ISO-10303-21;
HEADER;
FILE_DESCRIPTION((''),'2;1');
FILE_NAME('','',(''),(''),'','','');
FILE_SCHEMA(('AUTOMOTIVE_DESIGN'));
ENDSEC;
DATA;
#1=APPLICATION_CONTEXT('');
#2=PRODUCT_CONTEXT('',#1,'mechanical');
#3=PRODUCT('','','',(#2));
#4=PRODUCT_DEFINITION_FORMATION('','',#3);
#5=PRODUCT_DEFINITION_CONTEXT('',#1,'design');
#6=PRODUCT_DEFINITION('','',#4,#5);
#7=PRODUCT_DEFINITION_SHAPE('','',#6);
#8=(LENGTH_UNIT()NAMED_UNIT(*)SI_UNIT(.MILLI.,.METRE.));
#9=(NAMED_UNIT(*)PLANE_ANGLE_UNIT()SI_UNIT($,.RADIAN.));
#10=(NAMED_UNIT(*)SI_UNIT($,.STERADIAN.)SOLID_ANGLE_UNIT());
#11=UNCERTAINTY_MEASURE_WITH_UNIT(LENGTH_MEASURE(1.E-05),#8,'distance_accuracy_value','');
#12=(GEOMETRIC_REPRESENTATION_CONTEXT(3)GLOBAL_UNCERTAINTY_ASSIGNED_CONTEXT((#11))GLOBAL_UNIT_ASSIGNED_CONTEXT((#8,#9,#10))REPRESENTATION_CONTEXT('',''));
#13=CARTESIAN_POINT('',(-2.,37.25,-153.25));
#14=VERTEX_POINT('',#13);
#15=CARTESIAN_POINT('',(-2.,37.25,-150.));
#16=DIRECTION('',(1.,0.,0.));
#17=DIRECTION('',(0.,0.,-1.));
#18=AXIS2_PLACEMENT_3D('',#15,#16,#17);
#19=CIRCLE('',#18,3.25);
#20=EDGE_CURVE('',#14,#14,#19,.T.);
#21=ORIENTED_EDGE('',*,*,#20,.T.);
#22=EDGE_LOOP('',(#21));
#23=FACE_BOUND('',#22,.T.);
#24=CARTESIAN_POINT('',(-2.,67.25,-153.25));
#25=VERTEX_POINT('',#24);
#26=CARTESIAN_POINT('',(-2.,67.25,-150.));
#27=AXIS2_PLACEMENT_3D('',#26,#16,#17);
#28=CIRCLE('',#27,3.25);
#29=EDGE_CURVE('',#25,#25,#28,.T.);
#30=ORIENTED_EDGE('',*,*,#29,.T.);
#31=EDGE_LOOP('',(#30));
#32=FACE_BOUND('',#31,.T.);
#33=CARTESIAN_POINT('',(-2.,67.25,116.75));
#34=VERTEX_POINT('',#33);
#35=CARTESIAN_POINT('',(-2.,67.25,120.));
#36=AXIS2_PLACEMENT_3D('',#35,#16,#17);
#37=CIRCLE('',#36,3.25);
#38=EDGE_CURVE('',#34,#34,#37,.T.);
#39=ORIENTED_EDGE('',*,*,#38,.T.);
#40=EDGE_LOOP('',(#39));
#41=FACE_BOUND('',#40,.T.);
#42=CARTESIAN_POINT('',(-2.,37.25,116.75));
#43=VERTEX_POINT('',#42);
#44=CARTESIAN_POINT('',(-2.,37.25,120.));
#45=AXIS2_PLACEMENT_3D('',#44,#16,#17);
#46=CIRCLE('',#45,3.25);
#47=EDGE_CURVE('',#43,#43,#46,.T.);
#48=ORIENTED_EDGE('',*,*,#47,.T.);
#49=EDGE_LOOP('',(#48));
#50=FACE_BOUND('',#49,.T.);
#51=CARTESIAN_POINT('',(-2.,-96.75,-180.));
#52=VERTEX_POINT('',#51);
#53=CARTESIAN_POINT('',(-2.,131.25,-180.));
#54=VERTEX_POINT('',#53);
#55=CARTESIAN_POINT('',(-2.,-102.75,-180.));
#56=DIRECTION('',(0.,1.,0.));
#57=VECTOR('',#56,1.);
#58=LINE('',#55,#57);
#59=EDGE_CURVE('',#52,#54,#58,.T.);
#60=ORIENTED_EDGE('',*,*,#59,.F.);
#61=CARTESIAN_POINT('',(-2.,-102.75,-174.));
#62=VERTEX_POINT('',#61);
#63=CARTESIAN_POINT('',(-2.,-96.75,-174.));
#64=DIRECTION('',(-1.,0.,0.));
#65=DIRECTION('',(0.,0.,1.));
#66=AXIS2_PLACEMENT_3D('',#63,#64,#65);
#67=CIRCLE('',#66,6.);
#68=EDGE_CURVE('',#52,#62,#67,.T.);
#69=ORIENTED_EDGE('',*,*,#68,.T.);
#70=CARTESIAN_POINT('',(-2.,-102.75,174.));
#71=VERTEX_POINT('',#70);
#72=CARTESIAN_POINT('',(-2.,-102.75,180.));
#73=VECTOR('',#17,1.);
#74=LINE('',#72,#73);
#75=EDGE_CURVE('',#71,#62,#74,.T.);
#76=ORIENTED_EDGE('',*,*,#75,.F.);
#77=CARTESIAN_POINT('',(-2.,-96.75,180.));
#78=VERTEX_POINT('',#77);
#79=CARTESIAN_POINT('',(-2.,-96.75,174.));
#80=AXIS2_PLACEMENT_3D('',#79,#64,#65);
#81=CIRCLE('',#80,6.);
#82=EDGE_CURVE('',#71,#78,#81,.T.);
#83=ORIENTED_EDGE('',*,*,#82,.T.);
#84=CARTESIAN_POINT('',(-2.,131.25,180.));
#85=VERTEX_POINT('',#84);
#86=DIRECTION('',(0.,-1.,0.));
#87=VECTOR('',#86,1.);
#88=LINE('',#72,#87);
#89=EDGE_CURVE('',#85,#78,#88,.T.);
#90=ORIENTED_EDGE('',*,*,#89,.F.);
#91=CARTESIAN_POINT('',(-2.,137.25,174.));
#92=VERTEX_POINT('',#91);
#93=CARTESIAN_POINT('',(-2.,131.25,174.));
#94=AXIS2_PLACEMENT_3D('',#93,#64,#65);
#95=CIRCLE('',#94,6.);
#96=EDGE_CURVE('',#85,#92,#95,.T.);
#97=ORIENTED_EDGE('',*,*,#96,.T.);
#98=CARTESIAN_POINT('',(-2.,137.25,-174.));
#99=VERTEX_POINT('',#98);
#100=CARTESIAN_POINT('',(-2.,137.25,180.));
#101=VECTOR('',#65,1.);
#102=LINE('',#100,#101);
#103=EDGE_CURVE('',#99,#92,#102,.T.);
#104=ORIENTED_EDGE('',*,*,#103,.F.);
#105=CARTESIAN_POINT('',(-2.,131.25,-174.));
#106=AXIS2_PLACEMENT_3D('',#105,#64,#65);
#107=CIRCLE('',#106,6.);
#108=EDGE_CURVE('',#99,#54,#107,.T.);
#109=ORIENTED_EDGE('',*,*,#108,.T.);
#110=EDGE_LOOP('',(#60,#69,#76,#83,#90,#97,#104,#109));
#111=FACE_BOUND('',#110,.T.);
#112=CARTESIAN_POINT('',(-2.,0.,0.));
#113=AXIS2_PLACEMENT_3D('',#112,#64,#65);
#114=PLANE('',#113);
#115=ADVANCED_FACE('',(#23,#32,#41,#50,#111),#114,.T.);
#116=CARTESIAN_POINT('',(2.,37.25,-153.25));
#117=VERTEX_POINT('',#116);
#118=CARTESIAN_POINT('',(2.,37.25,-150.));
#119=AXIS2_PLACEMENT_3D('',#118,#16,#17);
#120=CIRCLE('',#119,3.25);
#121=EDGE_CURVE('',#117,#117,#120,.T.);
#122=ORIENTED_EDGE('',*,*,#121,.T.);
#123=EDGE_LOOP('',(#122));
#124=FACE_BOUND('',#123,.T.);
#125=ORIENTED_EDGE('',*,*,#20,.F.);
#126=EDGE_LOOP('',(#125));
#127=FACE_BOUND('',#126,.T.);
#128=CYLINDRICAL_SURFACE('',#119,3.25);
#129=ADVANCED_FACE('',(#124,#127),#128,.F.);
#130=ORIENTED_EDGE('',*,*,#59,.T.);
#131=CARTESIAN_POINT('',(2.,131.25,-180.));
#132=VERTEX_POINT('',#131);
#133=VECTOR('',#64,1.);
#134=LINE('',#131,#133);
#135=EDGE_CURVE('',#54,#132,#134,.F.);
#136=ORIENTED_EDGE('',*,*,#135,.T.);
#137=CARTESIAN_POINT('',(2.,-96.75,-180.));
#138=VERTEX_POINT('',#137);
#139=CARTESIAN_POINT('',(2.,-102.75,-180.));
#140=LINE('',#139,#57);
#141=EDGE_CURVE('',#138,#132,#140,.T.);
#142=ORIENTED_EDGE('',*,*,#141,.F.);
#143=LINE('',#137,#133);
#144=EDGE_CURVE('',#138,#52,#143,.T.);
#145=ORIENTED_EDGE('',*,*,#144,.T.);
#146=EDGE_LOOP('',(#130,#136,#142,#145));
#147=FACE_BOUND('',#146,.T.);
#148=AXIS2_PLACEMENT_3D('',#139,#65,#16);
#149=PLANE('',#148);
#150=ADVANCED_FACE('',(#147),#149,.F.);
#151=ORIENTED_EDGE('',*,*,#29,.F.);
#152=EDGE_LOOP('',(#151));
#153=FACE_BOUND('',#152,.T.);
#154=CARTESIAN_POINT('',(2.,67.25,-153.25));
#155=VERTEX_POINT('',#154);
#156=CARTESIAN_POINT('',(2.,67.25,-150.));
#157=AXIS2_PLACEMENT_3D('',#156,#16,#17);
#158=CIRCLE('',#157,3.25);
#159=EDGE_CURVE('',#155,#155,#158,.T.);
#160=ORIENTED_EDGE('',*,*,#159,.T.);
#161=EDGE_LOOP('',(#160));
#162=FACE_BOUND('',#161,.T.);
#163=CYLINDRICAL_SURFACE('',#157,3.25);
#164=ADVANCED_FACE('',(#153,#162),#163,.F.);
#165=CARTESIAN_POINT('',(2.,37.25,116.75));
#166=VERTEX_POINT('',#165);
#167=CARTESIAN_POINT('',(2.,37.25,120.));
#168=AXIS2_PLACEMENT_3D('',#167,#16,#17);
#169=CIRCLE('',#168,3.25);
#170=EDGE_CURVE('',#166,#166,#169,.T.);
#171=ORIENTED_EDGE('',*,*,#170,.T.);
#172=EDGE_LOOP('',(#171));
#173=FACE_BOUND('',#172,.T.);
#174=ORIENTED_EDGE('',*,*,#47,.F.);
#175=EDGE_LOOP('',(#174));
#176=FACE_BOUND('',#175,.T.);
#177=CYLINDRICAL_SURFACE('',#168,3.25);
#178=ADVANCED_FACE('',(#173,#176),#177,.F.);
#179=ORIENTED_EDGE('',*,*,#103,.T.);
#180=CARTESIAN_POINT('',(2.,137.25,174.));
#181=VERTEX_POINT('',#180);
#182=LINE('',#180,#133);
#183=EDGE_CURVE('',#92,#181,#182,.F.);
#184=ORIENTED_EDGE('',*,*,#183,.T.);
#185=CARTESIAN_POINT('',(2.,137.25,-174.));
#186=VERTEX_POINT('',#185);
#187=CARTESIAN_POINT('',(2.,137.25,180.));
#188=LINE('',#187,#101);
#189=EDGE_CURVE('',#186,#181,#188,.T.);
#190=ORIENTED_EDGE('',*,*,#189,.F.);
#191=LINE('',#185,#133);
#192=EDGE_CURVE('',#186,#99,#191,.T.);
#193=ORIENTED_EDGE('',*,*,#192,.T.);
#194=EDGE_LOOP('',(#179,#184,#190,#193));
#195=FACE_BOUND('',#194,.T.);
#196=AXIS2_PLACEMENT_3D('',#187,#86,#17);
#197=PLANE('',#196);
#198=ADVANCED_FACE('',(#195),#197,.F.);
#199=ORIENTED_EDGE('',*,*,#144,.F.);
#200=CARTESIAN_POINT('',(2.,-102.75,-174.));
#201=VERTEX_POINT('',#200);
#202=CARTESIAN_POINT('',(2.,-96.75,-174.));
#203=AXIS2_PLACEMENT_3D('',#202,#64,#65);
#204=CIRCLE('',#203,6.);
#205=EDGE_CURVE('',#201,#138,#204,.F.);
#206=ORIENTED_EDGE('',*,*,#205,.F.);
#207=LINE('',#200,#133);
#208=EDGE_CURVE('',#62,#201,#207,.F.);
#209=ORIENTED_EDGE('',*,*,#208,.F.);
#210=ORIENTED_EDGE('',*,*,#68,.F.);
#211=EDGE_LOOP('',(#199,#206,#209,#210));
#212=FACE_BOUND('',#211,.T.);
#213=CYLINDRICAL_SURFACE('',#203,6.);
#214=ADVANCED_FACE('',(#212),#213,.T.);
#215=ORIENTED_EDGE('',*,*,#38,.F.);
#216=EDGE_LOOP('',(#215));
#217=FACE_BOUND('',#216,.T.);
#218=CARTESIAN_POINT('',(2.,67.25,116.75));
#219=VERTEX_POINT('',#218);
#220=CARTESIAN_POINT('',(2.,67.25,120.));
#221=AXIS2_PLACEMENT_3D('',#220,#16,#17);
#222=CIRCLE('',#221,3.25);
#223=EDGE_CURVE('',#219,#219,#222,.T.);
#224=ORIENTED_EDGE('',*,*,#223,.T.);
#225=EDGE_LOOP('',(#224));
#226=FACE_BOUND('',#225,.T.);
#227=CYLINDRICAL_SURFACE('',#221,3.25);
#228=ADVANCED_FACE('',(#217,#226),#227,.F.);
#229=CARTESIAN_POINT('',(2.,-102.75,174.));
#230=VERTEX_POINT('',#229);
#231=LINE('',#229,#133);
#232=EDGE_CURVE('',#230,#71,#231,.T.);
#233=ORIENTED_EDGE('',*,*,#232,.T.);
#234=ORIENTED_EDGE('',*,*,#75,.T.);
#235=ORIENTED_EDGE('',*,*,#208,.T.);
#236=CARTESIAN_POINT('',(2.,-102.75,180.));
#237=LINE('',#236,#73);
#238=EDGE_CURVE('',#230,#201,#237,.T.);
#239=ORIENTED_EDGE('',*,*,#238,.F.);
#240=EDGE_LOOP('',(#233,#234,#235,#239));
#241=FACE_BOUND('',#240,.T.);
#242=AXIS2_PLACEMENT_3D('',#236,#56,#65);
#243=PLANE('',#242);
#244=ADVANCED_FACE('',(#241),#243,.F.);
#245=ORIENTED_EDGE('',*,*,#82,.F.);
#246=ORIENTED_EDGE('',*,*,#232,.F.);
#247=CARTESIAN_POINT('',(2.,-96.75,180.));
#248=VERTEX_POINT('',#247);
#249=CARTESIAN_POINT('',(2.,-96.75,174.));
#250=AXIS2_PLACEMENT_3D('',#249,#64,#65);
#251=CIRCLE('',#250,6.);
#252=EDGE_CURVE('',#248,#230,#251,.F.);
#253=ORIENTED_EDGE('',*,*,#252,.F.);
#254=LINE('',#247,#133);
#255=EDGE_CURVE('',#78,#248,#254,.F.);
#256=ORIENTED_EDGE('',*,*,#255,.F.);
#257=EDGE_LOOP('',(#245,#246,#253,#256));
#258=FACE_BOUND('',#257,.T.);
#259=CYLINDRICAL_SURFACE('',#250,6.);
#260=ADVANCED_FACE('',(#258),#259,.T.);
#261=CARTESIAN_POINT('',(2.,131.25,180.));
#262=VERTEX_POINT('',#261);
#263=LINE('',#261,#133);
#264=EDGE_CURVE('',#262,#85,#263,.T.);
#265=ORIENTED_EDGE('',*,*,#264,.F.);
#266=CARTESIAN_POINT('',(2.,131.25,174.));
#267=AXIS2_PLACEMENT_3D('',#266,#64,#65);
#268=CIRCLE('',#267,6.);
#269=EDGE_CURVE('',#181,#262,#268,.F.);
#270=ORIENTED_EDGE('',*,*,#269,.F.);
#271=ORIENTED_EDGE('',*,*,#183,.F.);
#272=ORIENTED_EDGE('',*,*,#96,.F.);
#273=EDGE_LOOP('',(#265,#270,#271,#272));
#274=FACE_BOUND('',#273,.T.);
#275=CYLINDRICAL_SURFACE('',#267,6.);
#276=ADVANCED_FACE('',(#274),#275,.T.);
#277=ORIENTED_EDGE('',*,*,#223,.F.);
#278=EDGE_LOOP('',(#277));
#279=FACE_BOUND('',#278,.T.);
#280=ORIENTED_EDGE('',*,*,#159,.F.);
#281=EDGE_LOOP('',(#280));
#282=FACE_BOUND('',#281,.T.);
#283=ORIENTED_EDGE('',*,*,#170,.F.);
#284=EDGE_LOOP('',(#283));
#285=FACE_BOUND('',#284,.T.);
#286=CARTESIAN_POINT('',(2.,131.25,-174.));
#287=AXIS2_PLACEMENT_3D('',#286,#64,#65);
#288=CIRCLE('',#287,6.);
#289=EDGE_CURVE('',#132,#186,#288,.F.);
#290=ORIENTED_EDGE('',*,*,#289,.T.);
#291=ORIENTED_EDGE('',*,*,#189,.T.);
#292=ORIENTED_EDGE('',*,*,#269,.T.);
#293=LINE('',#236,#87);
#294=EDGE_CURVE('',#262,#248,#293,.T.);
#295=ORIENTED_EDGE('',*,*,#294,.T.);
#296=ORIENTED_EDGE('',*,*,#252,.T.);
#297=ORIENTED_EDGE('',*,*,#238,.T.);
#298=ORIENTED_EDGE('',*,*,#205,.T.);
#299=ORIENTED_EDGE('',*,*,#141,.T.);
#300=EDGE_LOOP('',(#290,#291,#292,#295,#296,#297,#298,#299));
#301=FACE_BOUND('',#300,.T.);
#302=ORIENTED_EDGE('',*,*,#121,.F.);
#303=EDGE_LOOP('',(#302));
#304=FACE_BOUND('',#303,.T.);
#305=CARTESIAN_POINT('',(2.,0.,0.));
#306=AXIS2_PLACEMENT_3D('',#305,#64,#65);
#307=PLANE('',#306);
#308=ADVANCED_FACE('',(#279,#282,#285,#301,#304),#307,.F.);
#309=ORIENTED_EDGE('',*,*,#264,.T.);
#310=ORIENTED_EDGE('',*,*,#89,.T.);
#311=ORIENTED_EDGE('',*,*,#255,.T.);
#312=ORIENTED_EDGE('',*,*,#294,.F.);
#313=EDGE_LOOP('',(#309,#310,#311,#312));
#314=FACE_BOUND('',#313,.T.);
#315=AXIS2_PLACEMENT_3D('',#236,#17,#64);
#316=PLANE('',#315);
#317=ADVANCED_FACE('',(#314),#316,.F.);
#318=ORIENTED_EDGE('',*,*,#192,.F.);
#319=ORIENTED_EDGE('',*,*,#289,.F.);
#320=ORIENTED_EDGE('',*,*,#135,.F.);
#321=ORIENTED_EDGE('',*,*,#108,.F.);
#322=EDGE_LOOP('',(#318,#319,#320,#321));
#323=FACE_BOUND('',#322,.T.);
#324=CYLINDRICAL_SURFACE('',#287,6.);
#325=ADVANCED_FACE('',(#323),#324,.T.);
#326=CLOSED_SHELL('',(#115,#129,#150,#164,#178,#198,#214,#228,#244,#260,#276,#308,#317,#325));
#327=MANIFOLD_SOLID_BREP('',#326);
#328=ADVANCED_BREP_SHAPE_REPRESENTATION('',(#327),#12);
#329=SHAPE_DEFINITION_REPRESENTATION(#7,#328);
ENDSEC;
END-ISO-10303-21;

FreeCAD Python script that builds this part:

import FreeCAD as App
import Part
import Sketcher
from FreeCAD import Vector
Q = App.Units.Quantity


def edges_at(feature, points):
    """Names of the edges that pass closest to the given points."""
    edges = feature.Shape.Edges
    near = lambda p: min(range(len(edges)), key=lambda i: edges[i].distToShape(Part.Vertex(*p))[0])
    return sorted({f"Edge{near(p) + 1}" for p in points})


def add_polygon(sketch, points):
    """Adds a closed chain of lines whose ends are joined by coincident constraints."""
    first, n = sketch.GeometryCount, len(points)
    for a, b in zip(points, points[1:] + points[:1]):
        sketch.addGeometry(Part.LineSegment(App.Vector(*a, 0), App.Vector(*b, 0)), False)
    for i in range(n):
        sketch.addConstraint(Sketcher.Constraint("Coincident", first + i, 2, first + (i + 1) % n, 1))

doc = App.newDocument("Part")
body = doc.addObject("PartDesign::Body", "Body")

sketch1 = body.newObject("Sketcher::SketchObject", "Sketch")
sketch1.AttachmentSupport = (doc.getObject("YZ_Plane"), [""])
sketch1.MapMode = "FlatFace"
add_polygon(sketch1, [(137, 180), (-103, 180), (-103, -180), (137, -180)])
sketch1.addConstraint(Sketcher.Constraint("Horizontal", 0))
sketch1.addConstraint(Sketcher.Constraint("Vertical", 1))
sketch1.addConstraint(Sketcher.Constraint("Horizontal", 2))
sketch1.addConstraint(Sketcher.Constraint("Vertical", 3))
sketch1.addConstraint(Sketcher.Constraint("DistanceX", 0, 2, 0, 1, Q("240 mm")))
sketch1.addConstraint(Sketcher.Constraint("DistanceY", 1, 2, 1, 1, Q("360 mm")))
sketch1.addConstraint(Sketcher.Constraint("DistanceY", -1, 1, 0, 2, Q("180 mm")))
sketch1.addConstraint(Sketcher.Constraint("DistanceX", 0, 2, -1, 1, Q("102.75 mm")))
pad1 = body.newObject("PartDesign::Pad", "Pad")
pad1.Profile = sketch1
pad1.Length = 4
pad1.Midplane = True
doc.recompute()

fillet = body.newObject("PartDesign::Fillet", "Fillet")
fillet.Base = (pad1, edges_at(pad1, [
    (0, -102.75, -180),
    (0, -102.75, 180),
    (0, 137.25, 180),
    (0, 137.25, -180),
]))
fillet.Radius = 6

sketch2 = body.newObject("Sketcher::SketchObject", "Sketch001")
sketch2.AttachmentSupport = (doc.getObject("YZ_Plane"), [""])
sketch2.MapMode = "FlatFace"
sketch2.AttachmentOffset = App.Placement(Vector(0, 0, 2), App.Rotation())
sketch2.addGeometry(Part.Circle(Vector(67.2, 120, 0), Vector(0, 0, 1), 3.2), False)
sketch2.addGeometry(Part.Circle(Vector(37.2, -150, 0), Vector(0, 0, 1), 3.2), False)
sketch2.addGeometry(Part.Circle(Vector(37.2, 120, 0), Vector(0, 0, 1), 3.2), False)
sketch2.addGeometry(Part.Circle(Vector(67.2, -150, 0), Vector(0, 0, 1), 3.2), False)
sketch2.addConstraint(Sketcher.Constraint("Equal", 0, 1))
sketch2.addConstraint(Sketcher.Constraint("Equal", 1, 2))
sketch2.addConstraint(Sketcher.Constraint("Equal", 2, 3))
sketch2.addConstraint(Sketcher.Constraint("Horizontal", 0, 3, 2, 3))
sketch2.addConstraint(Sketcher.Constraint("Horizontal", 1, 3, 3, 3))
sketch2.addConstraint(Sketcher.Constraint("Vertical", 1, 3, 2, 3))
sketch2.addConstraint(Sketcher.Constraint("Vertical", 0, 3, 3, 3))
sketch2.addConstraint(Sketcher.Constraint("Diameter", 0, Q("6.5 mm")))
sketch2.addConstraint(Sketcher.Constraint("DistanceY", -1, 1, 0, 3, Q("120 mm")))
sketch2.addConstraint(Sketcher.Constraint("DistanceY", 1, 3, -1, 1, Q("150 mm")))
sketch2.addConstraint(Sketcher.Constraint("DistanceX", 1, 3, 0, 3, Q("30 mm")))
sketch2.addConstraint(Sketcher.Constraint("DistanceX", -1, 1, 0, 3, Q("67.25 mm")))
doc.recompute()
hole = body.newObject("PartDesign::Hole", "Hole")
hole.Profile = sketch2
hole.ThreadType = "None"
hole.Diameter = 6.5
hole.DepthType = "ThroughAll"

doc.recompute()
